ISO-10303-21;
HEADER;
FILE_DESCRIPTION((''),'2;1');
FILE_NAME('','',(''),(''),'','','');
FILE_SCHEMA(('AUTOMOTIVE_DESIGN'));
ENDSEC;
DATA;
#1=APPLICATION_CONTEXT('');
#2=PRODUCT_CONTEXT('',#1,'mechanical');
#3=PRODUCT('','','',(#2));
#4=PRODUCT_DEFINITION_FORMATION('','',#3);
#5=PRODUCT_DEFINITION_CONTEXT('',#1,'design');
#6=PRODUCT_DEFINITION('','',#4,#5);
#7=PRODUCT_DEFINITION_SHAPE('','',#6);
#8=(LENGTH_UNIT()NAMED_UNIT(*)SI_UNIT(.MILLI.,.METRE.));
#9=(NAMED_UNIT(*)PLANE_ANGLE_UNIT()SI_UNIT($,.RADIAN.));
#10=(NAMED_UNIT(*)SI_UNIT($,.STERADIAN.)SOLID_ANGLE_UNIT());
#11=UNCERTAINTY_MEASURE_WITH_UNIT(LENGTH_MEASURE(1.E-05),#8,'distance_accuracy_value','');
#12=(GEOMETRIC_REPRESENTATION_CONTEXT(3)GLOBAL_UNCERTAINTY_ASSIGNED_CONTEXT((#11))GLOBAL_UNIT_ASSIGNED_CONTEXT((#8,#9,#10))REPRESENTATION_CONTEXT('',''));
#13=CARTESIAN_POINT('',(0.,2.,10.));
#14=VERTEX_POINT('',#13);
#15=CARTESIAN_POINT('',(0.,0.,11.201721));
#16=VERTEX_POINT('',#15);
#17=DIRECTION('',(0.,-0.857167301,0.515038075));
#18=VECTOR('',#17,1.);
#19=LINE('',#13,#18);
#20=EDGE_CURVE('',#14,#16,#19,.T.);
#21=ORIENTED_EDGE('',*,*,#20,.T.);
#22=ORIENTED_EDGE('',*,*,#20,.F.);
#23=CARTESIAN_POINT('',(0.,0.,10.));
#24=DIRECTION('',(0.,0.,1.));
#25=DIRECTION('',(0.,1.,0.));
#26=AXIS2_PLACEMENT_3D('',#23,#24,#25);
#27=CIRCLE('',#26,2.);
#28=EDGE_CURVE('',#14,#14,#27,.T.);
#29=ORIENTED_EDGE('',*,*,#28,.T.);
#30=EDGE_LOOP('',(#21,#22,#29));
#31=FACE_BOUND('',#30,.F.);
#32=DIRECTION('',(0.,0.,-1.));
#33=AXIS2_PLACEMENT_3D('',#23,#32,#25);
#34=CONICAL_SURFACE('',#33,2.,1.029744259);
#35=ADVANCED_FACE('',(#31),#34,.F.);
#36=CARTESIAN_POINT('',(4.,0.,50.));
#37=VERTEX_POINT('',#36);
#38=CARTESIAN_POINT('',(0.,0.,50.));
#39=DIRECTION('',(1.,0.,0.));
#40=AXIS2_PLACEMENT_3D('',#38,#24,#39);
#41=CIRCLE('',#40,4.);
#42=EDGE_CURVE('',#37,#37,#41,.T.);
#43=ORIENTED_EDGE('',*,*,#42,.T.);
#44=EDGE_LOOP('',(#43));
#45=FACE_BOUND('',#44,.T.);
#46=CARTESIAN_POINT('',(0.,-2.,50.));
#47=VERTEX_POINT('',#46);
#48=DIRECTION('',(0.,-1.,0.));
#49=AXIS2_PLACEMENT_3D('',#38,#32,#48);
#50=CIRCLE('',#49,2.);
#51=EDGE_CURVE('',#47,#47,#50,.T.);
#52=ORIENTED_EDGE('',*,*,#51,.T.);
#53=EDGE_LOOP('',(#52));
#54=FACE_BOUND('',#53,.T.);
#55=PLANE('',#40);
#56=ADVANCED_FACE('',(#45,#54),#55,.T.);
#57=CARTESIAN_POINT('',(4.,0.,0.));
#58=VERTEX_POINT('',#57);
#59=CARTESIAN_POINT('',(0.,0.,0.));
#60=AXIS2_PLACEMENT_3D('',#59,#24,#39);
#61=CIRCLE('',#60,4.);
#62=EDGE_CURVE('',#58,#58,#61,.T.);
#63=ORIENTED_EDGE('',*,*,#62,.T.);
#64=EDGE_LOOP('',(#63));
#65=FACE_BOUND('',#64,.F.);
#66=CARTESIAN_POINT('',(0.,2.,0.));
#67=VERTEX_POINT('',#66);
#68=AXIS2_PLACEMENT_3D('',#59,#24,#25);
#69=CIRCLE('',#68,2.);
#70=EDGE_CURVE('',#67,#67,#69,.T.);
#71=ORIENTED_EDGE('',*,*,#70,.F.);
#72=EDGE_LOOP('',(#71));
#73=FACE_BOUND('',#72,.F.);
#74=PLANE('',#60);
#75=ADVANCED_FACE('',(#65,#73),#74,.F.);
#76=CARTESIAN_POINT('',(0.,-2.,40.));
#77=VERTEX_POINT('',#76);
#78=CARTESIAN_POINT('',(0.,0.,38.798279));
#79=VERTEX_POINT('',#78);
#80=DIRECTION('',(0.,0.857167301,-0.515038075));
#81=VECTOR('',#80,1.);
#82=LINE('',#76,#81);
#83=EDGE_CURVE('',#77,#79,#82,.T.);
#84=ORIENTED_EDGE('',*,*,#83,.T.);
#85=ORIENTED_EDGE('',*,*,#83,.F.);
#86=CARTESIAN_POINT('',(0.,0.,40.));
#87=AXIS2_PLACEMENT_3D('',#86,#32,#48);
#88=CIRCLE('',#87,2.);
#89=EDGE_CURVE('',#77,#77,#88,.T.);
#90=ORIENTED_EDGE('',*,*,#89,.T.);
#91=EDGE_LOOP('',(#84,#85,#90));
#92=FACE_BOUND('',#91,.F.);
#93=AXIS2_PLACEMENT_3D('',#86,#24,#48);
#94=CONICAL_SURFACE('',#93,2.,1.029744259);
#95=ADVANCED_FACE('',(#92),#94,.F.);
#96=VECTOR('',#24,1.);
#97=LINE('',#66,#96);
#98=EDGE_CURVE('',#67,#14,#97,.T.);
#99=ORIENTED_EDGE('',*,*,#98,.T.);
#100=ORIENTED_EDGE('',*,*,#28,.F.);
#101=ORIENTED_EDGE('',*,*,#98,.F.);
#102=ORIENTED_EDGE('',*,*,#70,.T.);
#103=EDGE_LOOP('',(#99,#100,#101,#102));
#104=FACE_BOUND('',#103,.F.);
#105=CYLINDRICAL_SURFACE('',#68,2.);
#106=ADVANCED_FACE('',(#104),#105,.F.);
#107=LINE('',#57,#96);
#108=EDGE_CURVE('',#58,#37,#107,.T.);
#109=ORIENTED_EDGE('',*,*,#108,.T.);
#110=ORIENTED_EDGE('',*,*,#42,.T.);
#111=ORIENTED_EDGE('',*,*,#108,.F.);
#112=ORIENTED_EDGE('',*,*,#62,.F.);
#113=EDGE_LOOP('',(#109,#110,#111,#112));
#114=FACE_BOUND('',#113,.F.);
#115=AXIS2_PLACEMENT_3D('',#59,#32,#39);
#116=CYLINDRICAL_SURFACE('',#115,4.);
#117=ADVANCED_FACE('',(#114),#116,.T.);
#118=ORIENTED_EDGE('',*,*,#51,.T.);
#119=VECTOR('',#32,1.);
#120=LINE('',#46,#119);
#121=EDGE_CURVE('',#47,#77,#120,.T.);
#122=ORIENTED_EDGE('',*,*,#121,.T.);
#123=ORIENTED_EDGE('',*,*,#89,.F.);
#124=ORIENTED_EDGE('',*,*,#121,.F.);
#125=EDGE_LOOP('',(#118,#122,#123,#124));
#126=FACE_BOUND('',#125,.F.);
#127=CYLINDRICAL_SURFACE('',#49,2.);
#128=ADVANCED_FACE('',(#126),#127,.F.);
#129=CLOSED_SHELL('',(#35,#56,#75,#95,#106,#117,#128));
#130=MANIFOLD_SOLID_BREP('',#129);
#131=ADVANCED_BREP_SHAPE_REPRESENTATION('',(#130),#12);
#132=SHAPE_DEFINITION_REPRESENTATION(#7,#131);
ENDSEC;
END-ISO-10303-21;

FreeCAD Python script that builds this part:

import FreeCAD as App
import Part
import Sketcher

doc = App.newDocument("Part")
params = doc.addObject("Spreadsheet::Sheet", "Params")
for row, (alias, value) in enumerate([
    ("sketch1_diameter", "8 mm"),
    ("pad1_length", "50 mm"),
    ("sketch2_diameter", "4 mm"),
    ("hole_diameter", "4 mm"),
    ("hole_depth", "10 mm"),
    ("sketch3_diameter", "4 mm"),
    ("hole2_diameter", "4 mm"),
    ("hole2_depth", "10 mm"),
], start=1):
    params.set(f"A{row}", alias)
    params.set(f"B{row}", "=" + value)
    params.setAlias(f"B{row}", alias)

body = doc.addObject("PartDesign::Body", "Body")

# Sketch on XY plane
sketch1 = body.newObject("Sketcher::SketchObject", "Sketch")
sketch1.AttachmentSupport = (doc.getObject("XY_Plane"), [""])
sketch1.MapMode = "FlatFace"
sketch1.addGeometry(Part.Circle(App.Vector(0, 0, 0), App.Vector(0, 0, 1), 4), False)
sketch1.addConstraint([
    Sketcher.Constraint("Coincident", 0, 3, -1, 1),
    Sketcher.Constraint("Diameter", 0, 8.0),
])
sketch1.setExpression("Constraints[1]", "Params.sketch1_diameter")
pad1 = body.newObject("PartDesign::Pad", "Pad")
pad1.Profile = sketch1
pad1.setExpression("Length", "Params.pad1_length")

# Sketch on XY plane
sketch2 = body.newObject("Sketcher::SketchObject", "Sketch001")
sketch2.AttachmentSupport = (doc.getObject("XY_Plane"), [""])
sketch2.MapMode = "FlatFace"
sketch2.AttachmentOffset = App.Placement(App.Vector(0, 0, 50), App.Rotation())
sketch2.addGeometry(Part.Circle(App.Vector(0, 0, 0), App.Vector(0, 0, 1), 2), False)
sketch2.addConstraint([
    Sketcher.Constraint("Coincident", 0, 3, -1, 1),
    Sketcher.Constraint("Diameter", 0, 4.0),
])
sketch2.setExpression("Constraints[1]", "Params.sketch2_diameter")
doc.recompute()
hole = body.newObject("PartDesign::Hole", "Hole")
hole.Profile = sketch2
hole.ThreadType = "None"
hole.setExpression("Diameter", "Params.hole_diameter")
hole.DepthType = "Dimension"
hole.setExpression("Depth", "Params.hole_depth")
hole.DrillPoint = "Angled"
hole.DrillPointAngle = 118

# Sketch on XY plane
sketch3 = body.newObject("Sketcher::SketchObject", "Sketch002")
sketch3.AttachmentSupport = (doc.getObject("XY_Plane"), [""])
sketch3.MapMode = "FlatFace"
sketch3.addGeometry(Part.Circle(App.Vector(0, 0, 0), App.Vector(0, 0, 1), 2), False)
sketch3.addConstraint([
    Sketcher.Constraint("Coincident", 0, 3, -1, 1),
    Sketcher.Constraint("Diameter", 0, 4.0),
])
sketch3.setExpression("Constraints[1]", "Params.sketch3_diameter")
doc.recompute()
hole2 = body.newObject("PartDesign::Hole", "Hole001")
hole2.Profile = sketch3
hole2.ThreadType = "None"
hole2.setExpression("Diameter", "Params.hole2_diameter")
hole2.DepthType = "Dimension"
hole2.setExpression("Depth", "Params.hole2_depth")
hole2.DrillPoint = "Angled"
hole2.DrillPointAngle = 118
hole2.Reversed = True

doc.recompute()
